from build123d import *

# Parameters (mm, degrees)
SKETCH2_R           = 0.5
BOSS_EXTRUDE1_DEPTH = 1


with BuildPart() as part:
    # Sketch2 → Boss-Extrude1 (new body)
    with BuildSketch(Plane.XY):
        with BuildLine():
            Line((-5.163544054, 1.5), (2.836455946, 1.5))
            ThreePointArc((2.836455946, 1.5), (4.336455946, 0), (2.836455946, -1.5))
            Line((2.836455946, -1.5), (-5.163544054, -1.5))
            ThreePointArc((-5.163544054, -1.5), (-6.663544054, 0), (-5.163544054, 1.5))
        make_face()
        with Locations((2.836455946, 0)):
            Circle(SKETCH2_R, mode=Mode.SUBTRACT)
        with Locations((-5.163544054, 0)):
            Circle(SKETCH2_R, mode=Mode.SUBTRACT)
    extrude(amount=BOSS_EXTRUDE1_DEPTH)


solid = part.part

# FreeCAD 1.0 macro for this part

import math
import FreeCAD as App
import Part
import Sketcher

V = App.Vector

doc = App.newDocument("Part")
params = doc.addObject("Spreadsheet::Sheet", "Params")
for row, (alias, value) in enumerate([
    ("sketch1_diameter", "1 mm"),
    ("sketch1_radius", "1.5 mm"),
    ("sketch1_width", "8 mm"),
    ("pad1_length", "1 mm"),
], start=1):
    params.set(f"A{row}", alias)
    params.set(f"B{row}", "=" + value)
    params.setAlias(f"B{row}", alias)

body = doc.addObject("PartDesign::Body", "Body")

sketch1 = body.newObject("Sketcher::SketchObject", "Sketch")
sketch1.AttachmentSupport = (doc.getObject("XY_Plane"), [""])
sketch1.MapMode = "FlatFace"
sketch1.addGeometry(Part.LineSegment(V(2.8, 1.5, 0), V(-5.2, 1.5, 0)), False)
sketch1.addGeometry(Part.ArcOfCircle(Part.Circle(V(-5.2, 0, 0), V(0, 0, 1), 1.5), math.radians(90), math.radians(270)), False)
sketch1.addGeometry(Part.LineSegment(V(-5.2, -1.5, 0), V(2.8, -1.5, 0)), False)
sketch1.addGeometry(Part.ArcOfCircle(Part.Circle(V(2.8, 0, 0), V(0, 0, 1), 1.5), math.radians(-90), math.radians(90)), False)
sketch1.addGeometry(Part.Circle(V(2.8, 0, 0), V(0, 0, 1), 0.5), False)
sketch1.addGeometry(Part.Circle(V(-5.2, 0, 0), V(0, 0, 1), 0.5), False)
sketch1.addConstraint(Sketcher.Constraint("Tangent", 0, 2, 1, 1))
sketch1.addConstraint(Sketcher.Constraint("Tangent", 1, 2, 2, 1))
sketch1.addConstraint(Sketcher.Constraint("Tangent", 2, 2, 3, 1))
sketch1.addConstraint(Sketcher.Constraint("Tangent", 3, 2, 0, 1))
sketch1.addConstraint(Sketcher.Constraint("Horizontal", 0))
sketch1.addConstraint(Sketcher.Constraint("Horizontal", 2))
sketch1.addConstraint(Sketcher.Constraint("Coincident", 4, 3, 3, 3))
sketch1.addConstraint(Sketcher.Constraint("Coincident", 5, 3, 1, 3))
sketch1.addConstraint(Sketcher.Constraint("Equal", 4, 5))
sketch1.addConstraint(Sketcher.Constraint("PointOnObject", 1, 3, -1))
sketch1.addConstraint(Sketcher.Constraint("Diameter", 4, 1.0))
sketch1.addConstraint(Sketcher.Constraint("Radius", 1, 1.5))
sketch1.addConstraint(Sketcher.Constraint("DistanceX", 0, 2, 0, 1, 8.0))
sketch1.addConstraint(Sketcher.Constraint("DistanceX", 1, 3, -1, 1, 5.163544))
sketch1.setExpression("Constraints[10]", "Params.sketch1_diameter")
sketch1.setExpression("Constraints[11]", "Params.sketch1_radius")
sketch1.setExpression("Constraints[12]", "Params.sketch1_width")
pad1 = body.newObject("PartDesign::Pad", "Pad")
pad1.Profile = sketch1
pad1.setExpression("Length", "Params.pad1_length")

doc.recompute()
